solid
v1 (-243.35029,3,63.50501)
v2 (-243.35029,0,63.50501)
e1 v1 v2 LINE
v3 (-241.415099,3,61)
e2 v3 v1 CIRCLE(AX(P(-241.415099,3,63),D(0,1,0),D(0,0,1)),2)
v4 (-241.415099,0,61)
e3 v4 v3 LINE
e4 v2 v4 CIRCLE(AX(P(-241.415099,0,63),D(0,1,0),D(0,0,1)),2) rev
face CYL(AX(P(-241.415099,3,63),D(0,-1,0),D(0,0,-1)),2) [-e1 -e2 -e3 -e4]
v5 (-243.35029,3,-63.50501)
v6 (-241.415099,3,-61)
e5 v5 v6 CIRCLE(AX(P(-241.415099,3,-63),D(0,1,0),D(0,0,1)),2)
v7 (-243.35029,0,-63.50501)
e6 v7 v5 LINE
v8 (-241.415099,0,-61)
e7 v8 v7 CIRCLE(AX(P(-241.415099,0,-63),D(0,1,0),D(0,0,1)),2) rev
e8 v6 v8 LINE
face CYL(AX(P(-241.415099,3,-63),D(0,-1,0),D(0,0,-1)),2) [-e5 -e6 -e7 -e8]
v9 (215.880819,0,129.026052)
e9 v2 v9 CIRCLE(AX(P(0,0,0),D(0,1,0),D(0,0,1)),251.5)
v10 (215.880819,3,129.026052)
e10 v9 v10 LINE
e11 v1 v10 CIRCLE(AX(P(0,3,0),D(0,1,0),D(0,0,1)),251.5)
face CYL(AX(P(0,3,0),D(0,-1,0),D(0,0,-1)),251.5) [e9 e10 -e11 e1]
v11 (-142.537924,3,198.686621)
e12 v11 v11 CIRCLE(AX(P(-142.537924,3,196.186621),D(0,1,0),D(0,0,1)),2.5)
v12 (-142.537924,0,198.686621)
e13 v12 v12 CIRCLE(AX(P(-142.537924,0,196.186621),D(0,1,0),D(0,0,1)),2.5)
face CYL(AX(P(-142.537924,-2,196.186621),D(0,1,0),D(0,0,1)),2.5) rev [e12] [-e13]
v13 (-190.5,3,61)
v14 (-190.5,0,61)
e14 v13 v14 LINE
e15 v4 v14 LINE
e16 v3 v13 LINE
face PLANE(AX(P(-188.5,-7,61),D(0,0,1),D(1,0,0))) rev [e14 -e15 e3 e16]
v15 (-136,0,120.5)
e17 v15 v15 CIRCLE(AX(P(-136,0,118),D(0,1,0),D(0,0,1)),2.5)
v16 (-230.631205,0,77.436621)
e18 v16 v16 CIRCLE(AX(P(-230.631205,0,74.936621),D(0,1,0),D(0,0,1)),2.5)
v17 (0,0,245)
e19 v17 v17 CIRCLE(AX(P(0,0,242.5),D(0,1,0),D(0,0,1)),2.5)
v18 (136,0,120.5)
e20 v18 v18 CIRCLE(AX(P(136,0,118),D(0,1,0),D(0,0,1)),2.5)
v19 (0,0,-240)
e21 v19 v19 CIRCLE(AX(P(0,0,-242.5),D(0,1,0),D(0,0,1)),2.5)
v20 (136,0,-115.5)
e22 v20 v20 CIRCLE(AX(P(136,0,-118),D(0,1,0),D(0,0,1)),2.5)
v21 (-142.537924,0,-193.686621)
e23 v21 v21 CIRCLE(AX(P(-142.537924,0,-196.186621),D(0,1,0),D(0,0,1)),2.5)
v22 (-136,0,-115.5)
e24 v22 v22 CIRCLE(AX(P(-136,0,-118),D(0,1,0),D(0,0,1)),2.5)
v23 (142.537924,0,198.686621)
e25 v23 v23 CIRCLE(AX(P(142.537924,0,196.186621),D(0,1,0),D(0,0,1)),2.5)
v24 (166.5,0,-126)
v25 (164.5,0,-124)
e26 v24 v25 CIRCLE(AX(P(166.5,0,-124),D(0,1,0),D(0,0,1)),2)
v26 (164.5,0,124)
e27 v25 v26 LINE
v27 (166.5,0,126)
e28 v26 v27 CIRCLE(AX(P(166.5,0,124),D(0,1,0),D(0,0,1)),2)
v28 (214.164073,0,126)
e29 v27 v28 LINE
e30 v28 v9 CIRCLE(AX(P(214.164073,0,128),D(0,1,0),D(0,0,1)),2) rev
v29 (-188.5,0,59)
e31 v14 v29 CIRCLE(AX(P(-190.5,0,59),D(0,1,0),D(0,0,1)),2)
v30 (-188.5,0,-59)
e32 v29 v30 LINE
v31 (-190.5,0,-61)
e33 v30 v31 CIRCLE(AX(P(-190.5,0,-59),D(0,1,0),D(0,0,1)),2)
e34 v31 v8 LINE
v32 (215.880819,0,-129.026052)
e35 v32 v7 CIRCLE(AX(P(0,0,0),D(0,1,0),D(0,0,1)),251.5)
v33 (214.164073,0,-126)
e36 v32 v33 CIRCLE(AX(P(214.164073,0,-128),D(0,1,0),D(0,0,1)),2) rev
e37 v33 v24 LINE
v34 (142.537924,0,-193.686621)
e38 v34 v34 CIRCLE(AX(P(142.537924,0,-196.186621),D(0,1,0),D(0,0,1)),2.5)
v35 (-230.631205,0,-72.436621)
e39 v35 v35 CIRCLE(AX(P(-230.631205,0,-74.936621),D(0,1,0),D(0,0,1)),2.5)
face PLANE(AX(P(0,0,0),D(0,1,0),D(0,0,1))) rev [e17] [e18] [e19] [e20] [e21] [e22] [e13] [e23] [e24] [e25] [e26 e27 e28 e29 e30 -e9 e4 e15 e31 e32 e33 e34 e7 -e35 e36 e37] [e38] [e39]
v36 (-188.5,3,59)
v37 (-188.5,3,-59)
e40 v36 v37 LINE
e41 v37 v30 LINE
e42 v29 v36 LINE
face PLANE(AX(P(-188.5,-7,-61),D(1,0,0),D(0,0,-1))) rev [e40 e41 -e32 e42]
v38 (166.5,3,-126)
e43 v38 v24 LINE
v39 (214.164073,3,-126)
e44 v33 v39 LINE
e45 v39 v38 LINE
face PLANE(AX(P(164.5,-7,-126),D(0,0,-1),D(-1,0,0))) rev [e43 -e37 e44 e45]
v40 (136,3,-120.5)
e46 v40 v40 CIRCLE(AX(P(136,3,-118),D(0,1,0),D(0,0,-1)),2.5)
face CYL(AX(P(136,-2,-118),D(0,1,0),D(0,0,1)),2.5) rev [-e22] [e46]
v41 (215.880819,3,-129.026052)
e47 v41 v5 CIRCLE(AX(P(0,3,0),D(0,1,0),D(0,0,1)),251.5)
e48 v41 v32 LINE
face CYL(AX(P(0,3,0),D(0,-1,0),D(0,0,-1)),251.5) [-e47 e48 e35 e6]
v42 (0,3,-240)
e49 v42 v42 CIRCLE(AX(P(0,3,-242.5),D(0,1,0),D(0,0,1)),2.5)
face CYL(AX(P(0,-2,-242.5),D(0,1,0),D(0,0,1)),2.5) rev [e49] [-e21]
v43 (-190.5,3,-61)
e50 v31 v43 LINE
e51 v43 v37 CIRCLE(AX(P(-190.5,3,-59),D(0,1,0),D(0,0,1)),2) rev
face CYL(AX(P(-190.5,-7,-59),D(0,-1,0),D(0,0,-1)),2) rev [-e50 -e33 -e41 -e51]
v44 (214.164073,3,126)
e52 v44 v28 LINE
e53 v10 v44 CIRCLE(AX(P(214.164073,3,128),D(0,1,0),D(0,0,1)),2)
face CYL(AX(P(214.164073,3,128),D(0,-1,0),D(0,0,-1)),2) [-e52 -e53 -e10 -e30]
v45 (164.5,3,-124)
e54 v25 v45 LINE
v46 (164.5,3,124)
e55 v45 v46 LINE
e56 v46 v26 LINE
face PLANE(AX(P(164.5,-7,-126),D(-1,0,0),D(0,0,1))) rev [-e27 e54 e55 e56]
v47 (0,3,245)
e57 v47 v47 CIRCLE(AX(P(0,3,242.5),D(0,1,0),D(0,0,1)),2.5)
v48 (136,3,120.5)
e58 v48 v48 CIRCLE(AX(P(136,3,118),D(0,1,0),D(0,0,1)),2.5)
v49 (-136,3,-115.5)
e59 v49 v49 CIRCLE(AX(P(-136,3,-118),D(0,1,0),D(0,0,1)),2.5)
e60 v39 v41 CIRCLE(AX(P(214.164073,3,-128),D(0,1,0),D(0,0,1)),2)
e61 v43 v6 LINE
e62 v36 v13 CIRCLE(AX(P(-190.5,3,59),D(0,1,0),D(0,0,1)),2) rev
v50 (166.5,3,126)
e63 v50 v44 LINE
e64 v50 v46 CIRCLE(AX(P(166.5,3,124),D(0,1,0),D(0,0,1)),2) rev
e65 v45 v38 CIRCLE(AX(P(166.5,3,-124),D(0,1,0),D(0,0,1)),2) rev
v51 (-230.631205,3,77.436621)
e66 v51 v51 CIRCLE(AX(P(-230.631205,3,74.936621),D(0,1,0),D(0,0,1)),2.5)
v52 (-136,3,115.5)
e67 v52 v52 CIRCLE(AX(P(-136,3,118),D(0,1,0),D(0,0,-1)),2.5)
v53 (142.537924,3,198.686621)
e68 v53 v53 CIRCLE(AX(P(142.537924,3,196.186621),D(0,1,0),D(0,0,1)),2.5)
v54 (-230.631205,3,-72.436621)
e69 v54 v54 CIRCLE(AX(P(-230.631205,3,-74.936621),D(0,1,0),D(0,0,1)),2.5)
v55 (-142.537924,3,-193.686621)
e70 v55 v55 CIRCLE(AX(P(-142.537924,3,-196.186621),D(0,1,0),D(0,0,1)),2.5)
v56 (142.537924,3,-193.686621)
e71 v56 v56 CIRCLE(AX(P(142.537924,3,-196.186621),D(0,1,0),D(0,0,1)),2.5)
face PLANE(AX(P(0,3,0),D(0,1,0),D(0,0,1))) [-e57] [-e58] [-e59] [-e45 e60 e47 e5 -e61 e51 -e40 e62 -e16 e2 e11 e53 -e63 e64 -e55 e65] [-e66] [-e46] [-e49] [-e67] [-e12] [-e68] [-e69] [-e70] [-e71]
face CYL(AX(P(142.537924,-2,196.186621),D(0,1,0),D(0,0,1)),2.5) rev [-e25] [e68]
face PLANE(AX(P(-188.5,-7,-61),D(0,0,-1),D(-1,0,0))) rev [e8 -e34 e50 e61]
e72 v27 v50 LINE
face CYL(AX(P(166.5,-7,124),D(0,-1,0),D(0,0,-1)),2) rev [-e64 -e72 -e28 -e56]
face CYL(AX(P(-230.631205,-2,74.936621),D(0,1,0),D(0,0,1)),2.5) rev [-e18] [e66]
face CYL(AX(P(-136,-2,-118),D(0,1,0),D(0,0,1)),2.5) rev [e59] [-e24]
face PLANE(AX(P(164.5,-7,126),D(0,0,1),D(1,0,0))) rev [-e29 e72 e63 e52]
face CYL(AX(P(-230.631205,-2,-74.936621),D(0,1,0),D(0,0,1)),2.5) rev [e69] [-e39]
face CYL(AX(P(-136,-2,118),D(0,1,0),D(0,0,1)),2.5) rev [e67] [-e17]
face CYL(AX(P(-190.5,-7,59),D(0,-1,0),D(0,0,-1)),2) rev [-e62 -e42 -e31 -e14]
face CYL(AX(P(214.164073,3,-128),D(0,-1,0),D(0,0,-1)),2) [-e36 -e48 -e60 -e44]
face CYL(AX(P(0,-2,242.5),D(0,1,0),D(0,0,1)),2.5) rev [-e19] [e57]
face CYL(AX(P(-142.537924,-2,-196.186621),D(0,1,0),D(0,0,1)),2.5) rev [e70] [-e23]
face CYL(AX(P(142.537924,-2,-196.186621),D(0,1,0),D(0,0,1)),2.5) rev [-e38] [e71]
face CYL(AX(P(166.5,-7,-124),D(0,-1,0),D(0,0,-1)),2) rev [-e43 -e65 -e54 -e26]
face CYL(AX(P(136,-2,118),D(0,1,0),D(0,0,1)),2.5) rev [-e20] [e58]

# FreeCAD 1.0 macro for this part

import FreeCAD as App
import Part
import Sketcher
Q = App.Units.Quantity


def edges_at(feature, points):
    """Names of the edges that pass closest to the given points."""
    edges = feature.Shape.Edges
    near = lambda p: min(range(len(edges)), key=lambda i: edges[i].distToShape(Part.Vertex(*p))[0])
    return sorted({f"Edge{near(p) + 1}" for p in points})


def add_polygon(sketch, points):
    """Adds a closed chain of lines whose ends are joined by coincident constraints."""
    first, n = sketch.GeometryCount, len(points)
    for a, b in zip(points, points[1:] + points[:1]):
        sketch.addGeometry(Part.LineSegment(App.Vector(*a, 0), App.Vector(*b, 0)), False)
    for i in range(n):
        sketch.addConstraint(Sketcher.Constraint("Coincident", first + i, 2, first + (i + 1) % n, 1))

doc = App.newDocument("Part")
body = doc.addObject("PartDesign::Body", "Body")

# Sketch on XZ plane
sketch1 = body.newObject("Sketcher::SketchObject", "Sketch")
sketch1.AttachmentSupport = (doc.getObject("XZ_Plane"), [""])
sketch1.MapMode = "FlatFace"
sketch1.addGeometry(Part.Circle(App.Vector(0, 0, 0), App.Vector(0, 0, 1), 252), False)
sketch1.addConstraint([
    Sketcher.Constraint("Coincident", 0, 3, -1, 1),
    Sketcher.Constraint("Diameter", 0, Q("503 mm")),
])
pad1 = body.newObject("PartDesign::Pad", "Pad")
pad1.Profile = sketch1
pad1.Length = 3
pad1.Reversed = True

# Sketch on XZ plane
sketch2 = body.newObject("Sketcher::SketchObject", "Sketch001")
sketch2.AttachmentSupport = (doc.getObject("XZ_Plane"), [""])
sketch2.MapMode = "FlatFace"
sketch2.AttachmentOffset = App.Placement(App.Vector(0, 0, -3), App.Rotation())
sketch2.addGeometry([
    Part.Circle(App.Vector(-136, -118, 0), App.Vector(0, 0, 1), 2.5),
    Part.Circle(App.Vector(136, -118, 0), App.Vector(0, 0, 1), 2.5),
    Part.Circle(App.Vector(136, 118, 0), App.Vector(0, 0, 1), 2.5),
    Part.Circle(App.Vector(-136, 118, 0), App.Vector(0, 0, 1), 2.5),
], False)
sketch2.addConstraint([
    Sketcher.Constraint("Equal", 0, 1),
    Sketcher.Constraint("Equal", 1, 2),
    Sketcher.Constraint("Equal", 2, 3),
    Sketcher.Constraint("Symmetric", 0, 3, 2, 3, -1, 1),
    Sketcher.Constraint("Symmetric", 1, 3, 3, 3, -1, 1),
    Sketcher.Constraint("Symmetric", 0, 3, 1, 3, -2),
    Sketcher.Constraint("Diameter", 0, Q("5 mm")),
    Sketcher.Constraint("DistanceX", 0, 3, -1, 1, Q("136 mm")),
    Sketcher.Constraint("DistanceY", 0, 3, -1, 1, Q("118 mm")),
])
pocket1 = body.newObject("PartDesign::Pocket", "Pocket")
pocket1.Profile = sketch2
pocket1.Length = 5
pocket1.Reversed = True

# Sketch on XZ plane
sketch3 = body.newObject("Sketcher::SketchObject", "Sketch002")
sketch3.AttachmentSupport = (doc.getObject("XZ_Plane"), [""])
sketch3.MapMode = "FlatFace"
sketch3.AttachmentOffset = App.Placement(App.Vector(0, 0, -3), App.Rotation())
sketch3.addGeometry([
    Part.Circle(App.Vector(0, -242.5, 0), App.Vector(0, 0, 1), 2.5),  # 0
    Part.Circle(App.Vector(142.5, -196.2, 0), App.Vector(0, 0, 1), 2.5),  # 1
    Part.Circle(App.Vector(230.6, -74.9, 0), App.Vector(0, 0, 1), 2.5),  # 2
    Part.Circle(App.Vector(230.6, 74.9, 0), App.Vector(0, 0, 1), 2.5),  # 3
    Part.Circle(App.Vector(142.5, 196.2, 0), App.Vector(0, 0, 1), 2.5),  # 4
    Part.Circle(App.Vector(0, 242.5, 0), App.Vector(0, 0, 1), 2.5),  # 5
    Part.Circle(App.Vector(-142.5, 196.2, 0), App.Vector(0, 0, 1), 2.5),  # 6
    Part.Circle(App.Vector(-230.6, 74.9, 0), App.Vector(0, 0, 1), 2.5),  # 7
    Part.Circle(App.Vector(-230.6, -74.9, 0), App.Vector(0, 0, 1), 2.5),  # 8
    Part.Circle(App.Vector(-142.5, -196.2, 0), App.Vector(0, 0, 1), 2.5),  # 9
], False)
sketch3.addConstraint([
    Sketcher.Constraint("Equal", 0, 1),
    Sketcher.Constraint("Equal", 1, 2),
    Sketcher.Constraint("Equal", 2, 3),
    Sketcher.Constraint("Equal", 3, 4),
    Sketcher.Constraint("Equal", 4, 5),
    Sketcher.Constraint("Equal", 5, 6),
    Sketcher.Constraint("Equal", 6, 7),
    Sketcher.Constraint("Equal", 7, 8),
    Sketcher.Constraint("Equal", 8, 9),
    Sketcher.Constraint("Symmetric", 0, 3, 5, 3, -1, 1),
    Sketcher.Constraint("Symmetric", 1, 3, 6, 3, -1, 1),
    Sketcher.Constraint("Symmetric", 2, 3, 7, 3, -1, 1),
    Sketcher.Constraint("Symmetric", 3, 3, 8, 3, -1, 1),
    Sketcher.Constraint("Symmetric", 4, 3, 9, 3, -1, 1),
    Sketcher.Constraint("Symmetric", 4, 3, 6, 3, -2),
    Sketcher.Constraint("Symmetric", 3, 3, 7, 3, -2),
    Sketcher.Constraint("PointOnObject", 0, 3, -2),
    Sketcher.Constraint("Diameter", 0, Q("5 mm")),
    Sketcher.Constraint("DistanceY", 0, 3, 5, 3, Q("485 mm")),
    Sketcher.Constraint("DistanceY", 1, 3, 2, 3, Q("121.25 mm")),
    Sketcher.Constraint("DistanceY", 1, 3, -1, 1, Q("196.186621 mm")),
    Sketcher.Constraint("DistanceX", 1, 3, 2, 3, Q("88.093282 mm")),
    Sketcher.Constraint("DistanceX", 6, 3, 3, 3, Q("373.169129 mm")),
])
pocket2 = body.newObject("PartDesign::Pocket", "Pocket001")
pocket2.Profile = sketch3
pocket2.Length = 5
pocket2.Reversed = True

# Sketch on XZ plane
sketch4 = body.newObject("Sketcher::SketchObject", "Sketch003")
sketch4.AttachmentSupport = (doc.getObject("XZ_Plane"), [""])
sketch4.MapMode = "FlatFace"
sketch4.AttachmentOffset = App.Placement(App.Vector(0, 0, -3), App.Rotation())
add_polygon(sketch4, [(-262, -61), (-262, 61), (-188, 61), (-188, -61)])  # lines 0-3
add_polygon(sketch4, [(164, -126), (164, 126), (287, 126), (287, -126)])  # lines 4-7
sketch4.addConstraint([
    Sketcher.Constraint("Vertical", 0),
    Sketcher.Constraint("Horizontal", 1),
    Sketcher.Constraint("Vertical", 2),
    Sketcher.Constraint("Horizontal", 3),
    Sketcher.Constraint("Vertical", 4),
    Sketcher.Constraint("Horizontal", 5),
    Sketcher.Constraint("Vertical", 6),
    Sketcher.Constraint("Horizontal", 7),
    Sketcher.Constraint("DistanceY", 0, 1, 0, 2, Q("122 mm")),
    Sketcher.Constraint("DistanceY", 4, 1, 4, 2, Q("252 mm")),
    Sketcher.Constraint("DistanceY", -1, 1, 0, 2, Q("61 mm")),
    Sketcher.Constraint("DistanceY", -1, 1, 4, 2, Q("126 mm")),
    Sketcher.Constraint("DistanceX", 1, 2, 4, 2, Q("353 mm")),
    Sketcher.Constraint("DistanceX", 1, 2, -1, 1, Q("188.5 mm")),
    Sketcher.Constraint("DistanceX", 5, 1, 5, 2, Q("122.237239 mm")),
    Sketcher.Constraint("DistanceX", 1, 1, 1, 2, Q("73.968704 mm")),
])
pocket3 = body.newObject("PartDesign::Pocket", "Pocket002")
pocket3.Profile = sketch4
pocket3.Length = 10
pocket3.Reversed = True
doc.recompute()

fillet = body.newObject("PartDesign::Fillet", "Fillet")
fillet.Base = (pocket3, edges_at(pocket3, [
    (-188.5, 1.5, -61),
    (-243.99, 1.5, 61),
    (-188.5, 1.5, 61),
    (-243.99, 1.5, -61),
    (164.5, 1.5, 126),
    (217.661, 1.5, -126),
    (164.5, 1.5, -126),
    (217.661, 1.5, 126),
]))
fillet.Radius = 2

doc.recompute()
